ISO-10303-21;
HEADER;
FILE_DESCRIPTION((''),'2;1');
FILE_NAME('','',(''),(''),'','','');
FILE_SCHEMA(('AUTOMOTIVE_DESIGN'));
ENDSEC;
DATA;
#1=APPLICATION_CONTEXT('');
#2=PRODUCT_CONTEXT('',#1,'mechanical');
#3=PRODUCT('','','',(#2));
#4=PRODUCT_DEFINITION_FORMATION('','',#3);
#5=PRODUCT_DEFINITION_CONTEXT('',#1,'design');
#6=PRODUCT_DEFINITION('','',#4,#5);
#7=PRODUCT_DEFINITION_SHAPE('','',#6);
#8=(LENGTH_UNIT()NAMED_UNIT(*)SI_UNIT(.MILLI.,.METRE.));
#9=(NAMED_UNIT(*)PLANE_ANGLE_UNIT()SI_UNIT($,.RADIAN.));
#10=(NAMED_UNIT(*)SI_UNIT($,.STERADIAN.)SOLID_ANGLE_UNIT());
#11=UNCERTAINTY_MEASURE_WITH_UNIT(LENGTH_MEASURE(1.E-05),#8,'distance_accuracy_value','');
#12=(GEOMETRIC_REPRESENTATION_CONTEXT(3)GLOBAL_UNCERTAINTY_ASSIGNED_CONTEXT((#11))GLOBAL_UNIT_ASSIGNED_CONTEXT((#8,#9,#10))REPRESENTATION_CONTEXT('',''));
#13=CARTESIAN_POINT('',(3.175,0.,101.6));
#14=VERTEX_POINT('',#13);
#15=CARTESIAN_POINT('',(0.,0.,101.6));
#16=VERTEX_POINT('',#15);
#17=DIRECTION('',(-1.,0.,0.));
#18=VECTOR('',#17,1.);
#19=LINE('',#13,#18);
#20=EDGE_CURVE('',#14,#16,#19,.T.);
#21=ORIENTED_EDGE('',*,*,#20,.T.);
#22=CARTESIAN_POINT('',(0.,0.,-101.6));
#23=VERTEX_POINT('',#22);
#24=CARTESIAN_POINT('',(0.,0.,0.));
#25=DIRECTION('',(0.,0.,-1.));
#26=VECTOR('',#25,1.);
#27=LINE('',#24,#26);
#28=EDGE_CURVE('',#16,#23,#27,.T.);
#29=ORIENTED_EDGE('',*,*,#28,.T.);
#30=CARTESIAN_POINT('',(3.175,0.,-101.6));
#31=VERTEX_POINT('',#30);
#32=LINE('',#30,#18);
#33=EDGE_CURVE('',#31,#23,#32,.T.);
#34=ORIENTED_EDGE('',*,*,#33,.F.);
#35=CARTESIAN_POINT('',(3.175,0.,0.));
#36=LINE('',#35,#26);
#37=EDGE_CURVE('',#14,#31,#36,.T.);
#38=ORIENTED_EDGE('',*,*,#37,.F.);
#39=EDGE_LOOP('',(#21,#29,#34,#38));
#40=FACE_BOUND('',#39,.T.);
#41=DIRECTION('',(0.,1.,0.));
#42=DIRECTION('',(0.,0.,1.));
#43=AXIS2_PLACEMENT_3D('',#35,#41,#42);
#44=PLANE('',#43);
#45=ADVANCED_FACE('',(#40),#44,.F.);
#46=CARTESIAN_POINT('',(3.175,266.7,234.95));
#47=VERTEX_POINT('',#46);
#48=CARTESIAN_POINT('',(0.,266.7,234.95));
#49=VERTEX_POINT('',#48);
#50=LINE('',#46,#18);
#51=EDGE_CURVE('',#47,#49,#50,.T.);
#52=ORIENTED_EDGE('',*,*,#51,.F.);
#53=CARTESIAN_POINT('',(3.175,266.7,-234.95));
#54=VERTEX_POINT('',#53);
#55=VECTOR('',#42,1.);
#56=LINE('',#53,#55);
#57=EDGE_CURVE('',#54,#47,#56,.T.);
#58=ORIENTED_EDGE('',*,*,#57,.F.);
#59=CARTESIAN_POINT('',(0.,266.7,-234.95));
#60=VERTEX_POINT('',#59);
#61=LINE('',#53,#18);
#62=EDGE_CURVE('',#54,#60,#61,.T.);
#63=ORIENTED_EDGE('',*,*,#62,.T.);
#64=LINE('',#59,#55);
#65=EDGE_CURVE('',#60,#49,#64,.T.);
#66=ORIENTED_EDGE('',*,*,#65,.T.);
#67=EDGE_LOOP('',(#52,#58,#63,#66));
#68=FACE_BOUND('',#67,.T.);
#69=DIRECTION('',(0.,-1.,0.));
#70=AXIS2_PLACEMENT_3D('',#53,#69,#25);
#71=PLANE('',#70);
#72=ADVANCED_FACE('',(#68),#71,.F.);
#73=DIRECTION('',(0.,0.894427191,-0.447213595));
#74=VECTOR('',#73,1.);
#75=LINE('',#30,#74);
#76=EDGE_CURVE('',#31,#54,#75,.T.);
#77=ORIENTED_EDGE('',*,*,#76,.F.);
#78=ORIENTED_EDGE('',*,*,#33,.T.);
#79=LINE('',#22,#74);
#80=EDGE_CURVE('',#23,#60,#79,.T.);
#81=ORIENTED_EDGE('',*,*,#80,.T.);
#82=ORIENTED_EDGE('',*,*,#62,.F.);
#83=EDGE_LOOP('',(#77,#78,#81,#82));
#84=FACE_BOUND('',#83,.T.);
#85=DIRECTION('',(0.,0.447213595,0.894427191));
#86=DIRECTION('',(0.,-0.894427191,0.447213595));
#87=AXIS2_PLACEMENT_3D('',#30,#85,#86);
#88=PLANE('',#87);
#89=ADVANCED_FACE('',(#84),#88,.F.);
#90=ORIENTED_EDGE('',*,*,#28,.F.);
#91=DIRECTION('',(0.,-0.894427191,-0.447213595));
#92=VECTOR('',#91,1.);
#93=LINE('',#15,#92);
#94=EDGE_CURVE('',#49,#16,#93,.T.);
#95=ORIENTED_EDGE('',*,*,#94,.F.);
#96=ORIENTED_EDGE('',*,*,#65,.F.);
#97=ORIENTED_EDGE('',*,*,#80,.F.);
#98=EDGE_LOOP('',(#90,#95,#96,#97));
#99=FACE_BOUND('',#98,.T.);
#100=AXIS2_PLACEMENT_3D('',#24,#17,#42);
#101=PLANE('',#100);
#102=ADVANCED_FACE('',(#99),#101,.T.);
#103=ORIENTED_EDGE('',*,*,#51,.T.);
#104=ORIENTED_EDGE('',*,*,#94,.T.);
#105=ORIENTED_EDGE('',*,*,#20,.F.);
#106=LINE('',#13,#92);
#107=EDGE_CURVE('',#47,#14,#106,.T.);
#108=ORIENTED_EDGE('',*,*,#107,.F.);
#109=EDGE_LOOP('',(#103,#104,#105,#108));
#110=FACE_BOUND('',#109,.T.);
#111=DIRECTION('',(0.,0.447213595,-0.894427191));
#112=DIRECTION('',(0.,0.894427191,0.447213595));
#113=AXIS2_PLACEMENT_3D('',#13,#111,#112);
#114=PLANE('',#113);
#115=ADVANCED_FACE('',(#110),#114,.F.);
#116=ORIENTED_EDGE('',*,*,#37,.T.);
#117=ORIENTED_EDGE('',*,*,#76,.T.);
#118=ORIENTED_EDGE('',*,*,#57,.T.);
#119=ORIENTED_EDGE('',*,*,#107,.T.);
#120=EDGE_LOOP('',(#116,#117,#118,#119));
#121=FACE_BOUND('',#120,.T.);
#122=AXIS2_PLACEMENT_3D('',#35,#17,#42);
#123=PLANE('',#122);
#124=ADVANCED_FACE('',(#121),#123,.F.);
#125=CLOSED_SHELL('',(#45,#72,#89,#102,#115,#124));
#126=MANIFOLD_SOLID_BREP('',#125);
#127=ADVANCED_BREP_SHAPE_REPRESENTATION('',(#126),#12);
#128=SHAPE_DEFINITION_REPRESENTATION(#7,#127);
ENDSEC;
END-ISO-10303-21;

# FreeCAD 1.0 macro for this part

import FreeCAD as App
import Part
import Sketcher
Q = App.Units.Quantity


def add_polygon(sketch, points):
    """Adds a closed chain of lines whose ends are joined by coincident constraints."""
    first, n = sketch.GeometryCount, len(points)
    for a, b in zip(points, points[1:] + points[:1]):
        sketch.addGeometry(Part.LineSegment(App.Vector(*a, 0), App.Vector(*b, 0)), False)
    for i in range(n):
        sketch.addConstraint(Sketcher.Constraint("Coincident", first + i, 2, first + (i + 1) % n, 1))

doc = App.newDocument("Part")
body = doc.addObject("PartDesign::Body", "Body")

# Sketch on YZ plane
sketch1 = doc.addObject("Sketcher::SketchObject", "Sketch")
body.addObject(sketch1)
sketch1.AttachmentSupport = (doc.YZ_Plane, [""])
sketch1.MapMode = "FlatFace"
add_polygon(sketch1, [(0, -102), (267, -235), (267, 235), (0, 102)])  # lines 0-3
sketch1.addConstraint(Sketcher.Constraint("Vertical", 1))
sketch1.addConstraint(Sketcher.Constraint("Vertical", 3))
sketch1.addConstraint(Sketcher.Constraint("Symmetric", 2, 2, 3, 2, -1, 1))
sketch1.addConstraint(Sketcher.Constraint("Equal", 0, 2))
sketch1.addConstraint(Sketcher.Constraint("DistanceY", 3, 2, 3, 1, Q("8 in")))
sketch1.addConstraint(Sketcher.Constraint("DistanceY", 1, 1, 1, 2, Q("18.5 in")))
sketch1.addConstraint(Sketcher.Constraint("DistanceX", -1, 1, 0, 2, Q("10.5 in")))
pad1 = doc.addObject("PartDesign::Pad", "Pad")
body.addObject(pad1)
pad1.Profile = sketch1
pad1.Length = Q("0.125 in")

doc.recompute()
